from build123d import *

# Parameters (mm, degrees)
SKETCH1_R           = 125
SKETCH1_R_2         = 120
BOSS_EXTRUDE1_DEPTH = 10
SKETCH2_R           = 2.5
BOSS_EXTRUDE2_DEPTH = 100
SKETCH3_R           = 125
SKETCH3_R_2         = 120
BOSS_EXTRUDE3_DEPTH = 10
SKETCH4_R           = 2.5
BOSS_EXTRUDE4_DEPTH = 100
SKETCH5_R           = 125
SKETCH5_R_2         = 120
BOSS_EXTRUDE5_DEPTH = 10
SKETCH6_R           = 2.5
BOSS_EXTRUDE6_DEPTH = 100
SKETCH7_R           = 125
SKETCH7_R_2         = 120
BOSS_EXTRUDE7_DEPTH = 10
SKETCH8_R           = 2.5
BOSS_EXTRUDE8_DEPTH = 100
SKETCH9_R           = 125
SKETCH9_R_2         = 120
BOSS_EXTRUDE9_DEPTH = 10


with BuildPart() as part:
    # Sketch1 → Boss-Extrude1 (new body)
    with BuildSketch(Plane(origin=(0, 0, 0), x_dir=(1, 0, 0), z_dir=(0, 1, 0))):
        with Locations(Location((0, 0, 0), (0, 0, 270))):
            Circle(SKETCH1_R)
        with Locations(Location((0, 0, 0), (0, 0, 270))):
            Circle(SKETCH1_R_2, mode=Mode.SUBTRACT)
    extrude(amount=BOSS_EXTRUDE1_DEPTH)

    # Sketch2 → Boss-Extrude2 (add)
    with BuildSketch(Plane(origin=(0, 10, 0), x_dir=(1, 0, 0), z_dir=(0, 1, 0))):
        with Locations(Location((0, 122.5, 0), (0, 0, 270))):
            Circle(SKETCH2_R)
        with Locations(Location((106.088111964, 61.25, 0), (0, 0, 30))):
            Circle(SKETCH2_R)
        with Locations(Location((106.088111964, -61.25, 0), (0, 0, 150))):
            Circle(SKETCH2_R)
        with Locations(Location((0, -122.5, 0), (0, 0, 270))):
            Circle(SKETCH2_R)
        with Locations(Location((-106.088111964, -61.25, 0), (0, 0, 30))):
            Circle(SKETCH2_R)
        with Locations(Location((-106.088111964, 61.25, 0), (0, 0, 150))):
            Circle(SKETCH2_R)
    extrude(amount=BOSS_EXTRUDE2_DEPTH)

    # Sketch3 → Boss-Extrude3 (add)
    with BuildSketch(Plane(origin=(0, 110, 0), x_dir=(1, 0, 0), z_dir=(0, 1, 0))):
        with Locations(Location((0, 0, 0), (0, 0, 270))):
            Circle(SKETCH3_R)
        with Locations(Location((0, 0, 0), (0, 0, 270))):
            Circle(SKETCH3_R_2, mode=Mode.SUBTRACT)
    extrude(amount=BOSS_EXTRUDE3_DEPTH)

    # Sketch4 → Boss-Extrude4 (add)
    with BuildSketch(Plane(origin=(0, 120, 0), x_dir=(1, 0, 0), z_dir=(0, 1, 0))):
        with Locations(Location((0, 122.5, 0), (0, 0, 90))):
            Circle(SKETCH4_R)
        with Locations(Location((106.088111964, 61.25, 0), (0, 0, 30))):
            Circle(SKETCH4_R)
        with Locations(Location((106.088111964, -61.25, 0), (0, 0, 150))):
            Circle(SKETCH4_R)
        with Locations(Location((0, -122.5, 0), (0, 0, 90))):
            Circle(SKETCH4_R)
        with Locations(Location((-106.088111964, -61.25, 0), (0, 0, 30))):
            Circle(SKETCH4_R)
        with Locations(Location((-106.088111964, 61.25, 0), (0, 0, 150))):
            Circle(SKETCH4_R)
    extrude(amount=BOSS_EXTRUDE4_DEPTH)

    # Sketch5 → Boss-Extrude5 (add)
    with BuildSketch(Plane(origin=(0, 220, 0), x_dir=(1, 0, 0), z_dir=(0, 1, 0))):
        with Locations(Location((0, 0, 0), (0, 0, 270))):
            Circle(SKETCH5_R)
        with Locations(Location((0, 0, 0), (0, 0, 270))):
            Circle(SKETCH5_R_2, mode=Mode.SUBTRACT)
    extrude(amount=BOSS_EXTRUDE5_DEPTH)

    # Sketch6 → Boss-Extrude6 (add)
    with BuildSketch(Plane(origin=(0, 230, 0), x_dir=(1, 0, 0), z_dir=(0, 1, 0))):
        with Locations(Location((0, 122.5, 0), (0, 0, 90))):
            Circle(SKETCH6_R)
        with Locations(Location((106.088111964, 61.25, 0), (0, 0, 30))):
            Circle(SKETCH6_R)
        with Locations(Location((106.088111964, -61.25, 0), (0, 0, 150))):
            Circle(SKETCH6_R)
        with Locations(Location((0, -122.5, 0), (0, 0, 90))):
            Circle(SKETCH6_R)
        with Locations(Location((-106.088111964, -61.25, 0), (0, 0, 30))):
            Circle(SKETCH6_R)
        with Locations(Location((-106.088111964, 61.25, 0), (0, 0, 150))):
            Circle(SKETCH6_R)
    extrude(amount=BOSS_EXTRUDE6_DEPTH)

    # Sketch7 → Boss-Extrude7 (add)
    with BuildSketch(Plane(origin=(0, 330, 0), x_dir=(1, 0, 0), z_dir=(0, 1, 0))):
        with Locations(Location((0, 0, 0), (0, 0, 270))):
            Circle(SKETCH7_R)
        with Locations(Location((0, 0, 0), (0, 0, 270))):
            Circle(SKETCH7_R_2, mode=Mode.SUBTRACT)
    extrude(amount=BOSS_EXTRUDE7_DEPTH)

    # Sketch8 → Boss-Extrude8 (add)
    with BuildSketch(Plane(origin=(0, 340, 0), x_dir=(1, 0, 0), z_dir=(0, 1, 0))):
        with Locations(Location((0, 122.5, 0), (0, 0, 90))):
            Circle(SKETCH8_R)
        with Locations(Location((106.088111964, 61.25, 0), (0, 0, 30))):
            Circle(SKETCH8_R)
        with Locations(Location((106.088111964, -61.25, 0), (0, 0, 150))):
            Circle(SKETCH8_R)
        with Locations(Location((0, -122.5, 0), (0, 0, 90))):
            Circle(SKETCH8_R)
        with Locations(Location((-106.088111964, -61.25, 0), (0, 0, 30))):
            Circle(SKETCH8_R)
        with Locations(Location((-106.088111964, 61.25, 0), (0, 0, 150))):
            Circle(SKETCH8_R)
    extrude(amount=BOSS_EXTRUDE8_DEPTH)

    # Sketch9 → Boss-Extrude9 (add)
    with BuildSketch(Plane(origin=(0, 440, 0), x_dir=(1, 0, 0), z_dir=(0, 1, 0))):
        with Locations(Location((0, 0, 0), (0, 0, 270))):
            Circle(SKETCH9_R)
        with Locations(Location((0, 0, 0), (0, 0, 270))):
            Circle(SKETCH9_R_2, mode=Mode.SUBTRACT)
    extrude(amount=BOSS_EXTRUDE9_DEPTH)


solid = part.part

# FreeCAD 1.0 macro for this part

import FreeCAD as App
import Part
import Sketcher

V = App.Vector

doc = App.newDocument("Part")
body = doc.addObject("PartDesign::Body", "Body")

sketch1 = body.newObject("Sketcher::SketchObject", "Sketch")
sketch1.AttachmentSupport = (doc.getObject("XZ_Plane"), [""])
sketch1.MapMode = "FlatFace"
sketch1.addGeometry(Part.Circle(V(0, 0, 0), V(0, 0, 1), 125), False)
sketch1.addGeometry(Part.Circle(V(0, 0, 0), V(0, 0, 1), 120), False)
sketch1.addConstraint(Sketcher.Constraint("Coincident", 0, 3, -1, 1))
sketch1.addConstraint(Sketcher.Constraint("Coincident", 1, 3, -1, 1))
sketch1.addConstraint(Sketcher.Constraint("Diameter", 0, 250.0))
sketch1.addConstraint(Sketcher.Constraint("Diameter", 1, 240.0))
pad1 = body.newObject("PartDesign::Pad", "Pad")
pad1.Profile = sketch1
pad1.Length = 10
pad1.Reversed = True

sketch2 = body.newObject("Sketcher::SketchObject", "Sketch001")
sketch2.AttachmentSupport = (doc.getObject("XZ_Plane"), [""])
sketch2.MapMode = "FlatFace"
sketch2.AttachmentOffset = App.Placement(V(0, 0, -10), App.Rotation())
sketch2.addGeometry(Part.Circle(V(0, -122.5, 0), V(0, 0, 1), 2.5), False)
sketch2.addGeometry(Part.Circle(V(106.1, -61.2, 0), V(0, 0, 1), 2.5), False)
sketch2.addGeometry(Part.Circle(V(106.1, 61.2, 0), V(0, 0, 1), 2.5), False)
sketch2.addGeometry(Part.Circle(V(0, 122.5, 0), V(0, 0, 1), 2.5), False)
sketch2.addGeometry(Part.Circle(V(-106.1, 61.2, 0), V(0, 0, 1), 2.5), False)
sketch2.addGeometry(Part.Circle(V(-106.1, -61.2, 0), V(0, 0, 1), 2.5), False)
sketch2.addConstraint(Sketcher.Constraint("Equal", 0, 1))
sketch2.addConstraint(Sketcher.Constraint("Equal", 1, 2))
sketch2.addConstraint(Sketcher.Constraint("Equal", 2, 3))
sketch2.addConstraint(Sketcher.Constraint("Equal", 3, 4))
sketch2.addConstraint(Sketcher.Constraint("Equal", 4, 5))
sketch2.addConstraint(Sketcher.Constraint("Symmetric", 0, 3, 3, 3, -1, 1))
sketch2.addConstraint(Sketcher.Constraint("Symmetric", 1, 3, 4, 3, -1, 1))
sketch2.addConstraint(Sketcher.Constraint("Symmetric", 2, 3, 5, 3, -1, 1))
sketch2.addConstraint(Sketcher.Constraint("Symmetric", 2, 3, 4, 3, -2))
sketch2.addConstraint(Sketcher.Constraint("PointOnObject", 0, 3, -2))
sketch2.addConstraint(Sketcher.Constraint("Diameter", 0, 5.0))
sketch2.addConstraint(Sketcher.Constraint("DistanceY", 0, 3, 3, 3, 245.0))
sketch2.addConstraint(Sketcher.Constraint("DistanceY", 1, 3, 2, 3, 122.5))
sketch2.addConstraint(Sketcher.Constraint("DistanceX", -1, 1, 1, 3, 106.088112))
pad2 = body.newObject("PartDesign::Pad", "Pad001")
pad2.Profile = sketch2
pad2.Length = 100
pad2.Reversed = True

sketch3 = body.newObject("Sketcher::SketchObject", "Sketch002")
sketch3.AttachmentSupport = (doc.getObject("XZ_Plane"), [""])
sketch3.MapMode = "FlatFace"
sketch3.AttachmentOffset = App.Placement(V(0, 0, -110), App.Rotation())
sketch3.addGeometry(Part.Circle(V(0, 0, 0), V(0, 0, 1), 125), False)
sketch3.addGeometry(Part.Circle(V(0, 0, 0), V(0, 0, 1), 120), False)
sketch3.addConstraint(Sketcher.Constraint("Coincident", 0, 3, -1, 1))
sketch3.addConstraint(Sketcher.Constraint("Coincident", 1, 3, -1, 1))
sketch3.addConstraint(Sketcher.Constraint("Diameter", 0, 250.0))
sketch3.addConstraint(Sketcher.Constraint("Diameter", 1, 240.0))
pad3 = body.newObject("PartDesign::Pad", "Pad002")
pad3.Profile = sketch3
pad3.Length = 10
pad3.Reversed = True

sketch4 = body.newObject("Sketcher::SketchObject", "Sketch003")
sketch4.AttachmentSupport = (doc.getObject("XZ_Plane"), [""])
sketch4.MapMode = "FlatFace"
sketch4.AttachmentOffset = App.Placement(V(0, 0, -120), App.Rotation())
sketch4.addGeometry(Part.Circle(V(0, -122.5, 0), V(0, 0, 1), 2.5), False)
sketch4.addGeometry(Part.Circle(V(106.1, -61.2, 0), V(0, 0, 1), 2.5), False)
sketch4.addGeometry(Part.Circle(V(106.1, 61.2, 0), V(0, 0, 1), 2.5), False)
sketch4.addGeometry(Part.Circle(V(0, 122.5, 0), V(0, 0, 1), 2.5), False)
sketch4.addGeometry(Part.Circle(V(-106.1, 61.2, 0), V(0, 0, 1), 2.5), False)
sketch4.addGeometry(Part.Circle(V(-106.1, -61.2, 0), V(0, 0, 1), 2.5), False)
sketch4.addConstraint(Sketcher.Constraint("Equal", 0, 1))
sketch4.addConstraint(Sketcher.Constraint("Equal", 1, 2))
sketch4.addConstraint(Sketcher.Constraint("Equal", 2, 3))
sketch4.addConstraint(Sketcher.Constraint("Equal", 3, 4))
sketch4.addConstraint(Sketcher.Constraint("Equal", 4, 5))
sketch4.addConstraint(Sketcher.Constraint("Symmetric", 0, 3, 3, 3, -1, 1))
sketch4.addConstraint(Sketcher.Constraint("Symmetric", 1, 3, 4, 3, -1, 1))
sketch4.addConstraint(Sketcher.Constraint("Symmetric", 2, 3, 5, 3, -1, 1))
sketch4.addConstraint(Sketcher.Constraint("Symmetric", 2, 3, 4, 3, -2))
sketch4.addConstraint(Sketcher.Constraint("PointOnObject", 0, 3, -2))
sketch4.addConstraint(Sketcher.Constraint("Diameter", 0, 5.0))
sketch4.addConstraint(Sketcher.Constraint("DistanceY", 0, 3, 3, 3, 245.0))
sketch4.addConstraint(Sketcher.Constraint("DistanceY", 1, 3, 2, 3, 122.5))
sketch4.addConstraint(Sketcher.Constraint("DistanceX", -1, 1, 1, 3, 106.088112))
pad4 = body.newObject("PartDesign::Pad", "Pad003")
pad4.Profile = sketch4
pad4.Length = 100
pad4.Reversed = True

sketch5 = body.newObject("Sketcher::SketchObject", "Sketch004")
sketch5.AttachmentSupport = (doc.getObject("XZ_Plane"), [""])
sketch5.MapMode = "FlatFace"
sketch5.AttachmentOffset = App.Placement(V(0, 0, -220), App.Rotation())
sketch5.addGeometry(Part.Circle(V(0, 0, 0), V(0, 0, 1), 125), False)
sketch5.addGeometry(Part.Circle(V(0, 0, 0), V(0, 0, 1), 120), False)
sketch5.addConstraint(Sketcher.Constraint("Coincident", 0, 3, -1, 1))
sketch5.addConstraint(Sketcher.Constraint("Coincident", 1, 3, -1, 1))
sketch5.addConstraint(Sketcher.Constraint("Diameter", 0, 250.0))
sketch5.addConstraint(Sketcher.Constraint("Diameter", 1, 240.0))
pad5 = body.newObject("PartDesign::Pad", "Pad004")
pad5.Profile = sketch5
pad5.Length = 10
pad5.Reversed = True

sketch6 = body.newObject("Sketcher::SketchObject", "Sketch005")
sketch6.AttachmentSupport = (doc.getObject("XZ_Plane"), [""])
sketch6.MapMode = "FlatFace"
sketch6.AttachmentOffset = App.Placement(V(0, 0, -230), App.Rotation())
sketch6.addGeometry(Part.Circle(V(0, -122.5, 0), V(0, 0, 1), 2.5), False)
sketch6.addGeometry(Part.Circle(V(106.1, -61.2, 0), V(0, 0, 1), 2.5), False)
sketch6.addGeometry(Part.Circle(V(106.1, 61.2, 0), V(0, 0, 1), 2.5), False)
sketch6.addGeometry(Part.Circle(V(0, 122.5, 0), V(0, 0, 1), 2.5), False)
sketch6.addGeometry(Part.Circle(V(-106.1, 61.2, 0), V(0, 0, 1), 2.5), False)
sketch6.addGeometry(Part.Circle(V(-106.1, -61.2, 0), V(0, 0, 1), 2.5), False)
sketch6.addConstraint(Sketcher.Constraint("Equal", 0, 1))
sketch6.addConstraint(Sketcher.Constraint("Equal", 1, 2))
sketch6.addConstraint(Sketcher.Constraint("Equal", 2, 3))
sketch6.addConstraint(Sketcher.Constraint("Equal", 3, 4))
sketch6.addConstraint(Sketcher.Constraint("Equal", 4, 5))
sketch6.addConstraint(Sketcher.Constraint("Symmetric", 0, 3, 3, 3, -1, 1))
sketch6.addConstraint(Sketcher.Constraint("Symmetric", 1, 3, 4, 3, -1, 1))
sketch6.addConstraint(Sketcher.Constraint("Symmetric", 2, 3, 5, 3, -1, 1))
sketch6.addConstraint(Sketcher.Constraint("Symmetric", 2, 3, 4, 3, -2))
sketch6.addConstraint(Sketcher.Constraint("PointOnObject", 0, 3, -2))
sketch6.addConstraint(Sketcher.Constraint("Diameter", 0, 5.0))
sketch6.addConstraint(Sketcher.Constraint("DistanceY", 0, 3, 3, 3, 245.0))
sketch6.addConstraint(Sketcher.Constraint("DistanceY", 1, 3, 2, 3, 122.5))
sketch6.addConstraint(Sketcher.Constraint("DistanceX", -1, 1, 1, 3, 106.088112))
pad6 = body.newObject("PartDesign::Pad", "Pad005")
pad6.Profile = sketch6
pad6.Length = 100
pad6.Reversed = True

sketch7 = body.newObject("Sketcher::SketchObject", "Sketch006")
sketch7.AttachmentSupport = (doc.getObject("XZ_Plane"), [""])
sketch7.MapMode = "FlatFace"
sketch7.AttachmentOffset = App.Placement(V(0, 0, -330), App.Rotation())
sketch7.addGeometry(Part.Circle(V(0, 0, 0), V(0, 0, 1), 125), False)
sketch7.addGeometry(Part.Circle(V(0, 0, 0), V(0, 0, 1), 120), False)
sketch7.addConstraint(Sketcher.Constraint("Coincident", 0, 3, -1, 1))
sketch7.addConstraint(Sketcher.Constraint("Coincident", 1, 3, -1, 1))
sketch7.addConstraint(Sketcher.Constraint("Diameter", 0, 250.0))
sketch7.addConstraint(Sketcher.Constraint("Diameter", 1, 240.0))
pad7 = body.newObject("PartDesign::Pad", "Pad006")
pad7.Profile = sketch7
pad7.Length = 10
pad7.Reversed = True

sketch8 = body.newObject("Sketcher::SketchObject", "Sketch007")
sketch8.AttachmentSupport = (doc.getObject("XZ_Plane"), [""])
sketch8.MapMode = "FlatFace"
sketch8.AttachmentOffset = App.Placement(V(0, 0, -340), App.Rotation())
sketch8.addGeometry(Part.Circle(V(0, -122.5, 0), V(0, 0, 1), 2.5), False)
sketch8.addGeometry(Part.Circle(V(106.1, -61.2, 0), V(0, 0, 1), 2.5), False)
sketch8.addGeometry(Part.Circle(V(106.1, 61.2, 0), V(0, 0, 1), 2.5), False)
sketch8.addGeometry(Part.Circle(V(0, 122.5, 0), V(0, 0, 1), 2.5), False)
sketch8.addGeometry(Part.Circle(V(-106.1, 61.2, 0), V(0, 0, 1), 2.5), False)
sketch8.addGeometry(Part.Circle(V(-106.1, -61.2, 0), V(0, 0, 1), 2.5), False)
sketch8.addConstraint(Sketcher.Constraint("Equal", 0, 1))
sketch8.addConstraint(Sketcher.Constraint("Equal", 1, 2))
sketch8.addConstraint(Sketcher.Constraint("Equal", 2, 3))
sketch8.addConstraint(Sketcher.Constraint("Equal", 3, 4))
sketch8.addConstraint(Sketcher.Constraint("Equal", 4, 5))
sketch8.addConstraint(Sketcher.Constraint("Symmetric", 0, 3, 3, 3, -1, 1))
sketch8.addConstraint(Sketcher.Constraint("Symmetric", 1, 3, 4, 3, -1, 1))
sketch8.addConstraint(Sketcher.Constraint("Symmetric", 2, 3, 5, 3, -1, 1))
sketch8.addConstraint(Sketcher.Constraint("Symmetric", 2, 3, 4, 3, -2))
sketch8.addConstraint(Sketcher.Constraint("PointOnObject", 0, 3, -2))
sketch8.addConstraint(Sketcher.Constraint("Diameter", 0, 5.0))
sketch8.addConstraint(Sketcher.Constraint("DistanceY", 0, 3, 3, 3, 245.0))
sketch8.addConstraint(Sketcher.Constraint("DistanceY", 1, 3, 2, 3, 122.5))
sketch8.addConstraint(Sketcher.Constraint("DistanceX", -1, 1, 1, 3, 106.088112))
pad8 = body.newObject("PartDesign::Pad", "Pad007")
pad8.Profile = sketch8
pad8.Length = 100
pad8.Reversed = True

sketch9 = body.newObject("Sketcher::SketchObject", "Sketch008")
sketch9.AttachmentSupport = (doc.getObject("XZ_Plane"), [""])
sketch9.MapMode = "FlatFace"
sketch9.AttachmentOffset = App.Placement(V(0, 0, -440), App.Rotation())
sketch9.addGeometry(Part.Circle(V(0, 0, 0), V(0, 0, 1), 125), False)
sketch9.addGeometry(Part.Circle(V(0, 0, 0), V(0, 0, 1), 120), False)
sketch9.addConstraint(Sketcher.Constraint("Coincident", 0, 3, -1, 1))
sketch9.addConstraint(Sketcher.Constraint("Coincident", 1, 3, -1, 1))
sketch9.addConstraint(Sketcher.Constraint("Diameter", 0, 250.0))
sketch9.addConstraint(Sketcher.Constraint("Diameter", 1, 240.0))
pad9 = body.newObject("PartDesign::Pad", "Pad008")
pad9.Profile = sketch9
pad9.Length = 10
pad9.Reversed = True

doc.recompute()
